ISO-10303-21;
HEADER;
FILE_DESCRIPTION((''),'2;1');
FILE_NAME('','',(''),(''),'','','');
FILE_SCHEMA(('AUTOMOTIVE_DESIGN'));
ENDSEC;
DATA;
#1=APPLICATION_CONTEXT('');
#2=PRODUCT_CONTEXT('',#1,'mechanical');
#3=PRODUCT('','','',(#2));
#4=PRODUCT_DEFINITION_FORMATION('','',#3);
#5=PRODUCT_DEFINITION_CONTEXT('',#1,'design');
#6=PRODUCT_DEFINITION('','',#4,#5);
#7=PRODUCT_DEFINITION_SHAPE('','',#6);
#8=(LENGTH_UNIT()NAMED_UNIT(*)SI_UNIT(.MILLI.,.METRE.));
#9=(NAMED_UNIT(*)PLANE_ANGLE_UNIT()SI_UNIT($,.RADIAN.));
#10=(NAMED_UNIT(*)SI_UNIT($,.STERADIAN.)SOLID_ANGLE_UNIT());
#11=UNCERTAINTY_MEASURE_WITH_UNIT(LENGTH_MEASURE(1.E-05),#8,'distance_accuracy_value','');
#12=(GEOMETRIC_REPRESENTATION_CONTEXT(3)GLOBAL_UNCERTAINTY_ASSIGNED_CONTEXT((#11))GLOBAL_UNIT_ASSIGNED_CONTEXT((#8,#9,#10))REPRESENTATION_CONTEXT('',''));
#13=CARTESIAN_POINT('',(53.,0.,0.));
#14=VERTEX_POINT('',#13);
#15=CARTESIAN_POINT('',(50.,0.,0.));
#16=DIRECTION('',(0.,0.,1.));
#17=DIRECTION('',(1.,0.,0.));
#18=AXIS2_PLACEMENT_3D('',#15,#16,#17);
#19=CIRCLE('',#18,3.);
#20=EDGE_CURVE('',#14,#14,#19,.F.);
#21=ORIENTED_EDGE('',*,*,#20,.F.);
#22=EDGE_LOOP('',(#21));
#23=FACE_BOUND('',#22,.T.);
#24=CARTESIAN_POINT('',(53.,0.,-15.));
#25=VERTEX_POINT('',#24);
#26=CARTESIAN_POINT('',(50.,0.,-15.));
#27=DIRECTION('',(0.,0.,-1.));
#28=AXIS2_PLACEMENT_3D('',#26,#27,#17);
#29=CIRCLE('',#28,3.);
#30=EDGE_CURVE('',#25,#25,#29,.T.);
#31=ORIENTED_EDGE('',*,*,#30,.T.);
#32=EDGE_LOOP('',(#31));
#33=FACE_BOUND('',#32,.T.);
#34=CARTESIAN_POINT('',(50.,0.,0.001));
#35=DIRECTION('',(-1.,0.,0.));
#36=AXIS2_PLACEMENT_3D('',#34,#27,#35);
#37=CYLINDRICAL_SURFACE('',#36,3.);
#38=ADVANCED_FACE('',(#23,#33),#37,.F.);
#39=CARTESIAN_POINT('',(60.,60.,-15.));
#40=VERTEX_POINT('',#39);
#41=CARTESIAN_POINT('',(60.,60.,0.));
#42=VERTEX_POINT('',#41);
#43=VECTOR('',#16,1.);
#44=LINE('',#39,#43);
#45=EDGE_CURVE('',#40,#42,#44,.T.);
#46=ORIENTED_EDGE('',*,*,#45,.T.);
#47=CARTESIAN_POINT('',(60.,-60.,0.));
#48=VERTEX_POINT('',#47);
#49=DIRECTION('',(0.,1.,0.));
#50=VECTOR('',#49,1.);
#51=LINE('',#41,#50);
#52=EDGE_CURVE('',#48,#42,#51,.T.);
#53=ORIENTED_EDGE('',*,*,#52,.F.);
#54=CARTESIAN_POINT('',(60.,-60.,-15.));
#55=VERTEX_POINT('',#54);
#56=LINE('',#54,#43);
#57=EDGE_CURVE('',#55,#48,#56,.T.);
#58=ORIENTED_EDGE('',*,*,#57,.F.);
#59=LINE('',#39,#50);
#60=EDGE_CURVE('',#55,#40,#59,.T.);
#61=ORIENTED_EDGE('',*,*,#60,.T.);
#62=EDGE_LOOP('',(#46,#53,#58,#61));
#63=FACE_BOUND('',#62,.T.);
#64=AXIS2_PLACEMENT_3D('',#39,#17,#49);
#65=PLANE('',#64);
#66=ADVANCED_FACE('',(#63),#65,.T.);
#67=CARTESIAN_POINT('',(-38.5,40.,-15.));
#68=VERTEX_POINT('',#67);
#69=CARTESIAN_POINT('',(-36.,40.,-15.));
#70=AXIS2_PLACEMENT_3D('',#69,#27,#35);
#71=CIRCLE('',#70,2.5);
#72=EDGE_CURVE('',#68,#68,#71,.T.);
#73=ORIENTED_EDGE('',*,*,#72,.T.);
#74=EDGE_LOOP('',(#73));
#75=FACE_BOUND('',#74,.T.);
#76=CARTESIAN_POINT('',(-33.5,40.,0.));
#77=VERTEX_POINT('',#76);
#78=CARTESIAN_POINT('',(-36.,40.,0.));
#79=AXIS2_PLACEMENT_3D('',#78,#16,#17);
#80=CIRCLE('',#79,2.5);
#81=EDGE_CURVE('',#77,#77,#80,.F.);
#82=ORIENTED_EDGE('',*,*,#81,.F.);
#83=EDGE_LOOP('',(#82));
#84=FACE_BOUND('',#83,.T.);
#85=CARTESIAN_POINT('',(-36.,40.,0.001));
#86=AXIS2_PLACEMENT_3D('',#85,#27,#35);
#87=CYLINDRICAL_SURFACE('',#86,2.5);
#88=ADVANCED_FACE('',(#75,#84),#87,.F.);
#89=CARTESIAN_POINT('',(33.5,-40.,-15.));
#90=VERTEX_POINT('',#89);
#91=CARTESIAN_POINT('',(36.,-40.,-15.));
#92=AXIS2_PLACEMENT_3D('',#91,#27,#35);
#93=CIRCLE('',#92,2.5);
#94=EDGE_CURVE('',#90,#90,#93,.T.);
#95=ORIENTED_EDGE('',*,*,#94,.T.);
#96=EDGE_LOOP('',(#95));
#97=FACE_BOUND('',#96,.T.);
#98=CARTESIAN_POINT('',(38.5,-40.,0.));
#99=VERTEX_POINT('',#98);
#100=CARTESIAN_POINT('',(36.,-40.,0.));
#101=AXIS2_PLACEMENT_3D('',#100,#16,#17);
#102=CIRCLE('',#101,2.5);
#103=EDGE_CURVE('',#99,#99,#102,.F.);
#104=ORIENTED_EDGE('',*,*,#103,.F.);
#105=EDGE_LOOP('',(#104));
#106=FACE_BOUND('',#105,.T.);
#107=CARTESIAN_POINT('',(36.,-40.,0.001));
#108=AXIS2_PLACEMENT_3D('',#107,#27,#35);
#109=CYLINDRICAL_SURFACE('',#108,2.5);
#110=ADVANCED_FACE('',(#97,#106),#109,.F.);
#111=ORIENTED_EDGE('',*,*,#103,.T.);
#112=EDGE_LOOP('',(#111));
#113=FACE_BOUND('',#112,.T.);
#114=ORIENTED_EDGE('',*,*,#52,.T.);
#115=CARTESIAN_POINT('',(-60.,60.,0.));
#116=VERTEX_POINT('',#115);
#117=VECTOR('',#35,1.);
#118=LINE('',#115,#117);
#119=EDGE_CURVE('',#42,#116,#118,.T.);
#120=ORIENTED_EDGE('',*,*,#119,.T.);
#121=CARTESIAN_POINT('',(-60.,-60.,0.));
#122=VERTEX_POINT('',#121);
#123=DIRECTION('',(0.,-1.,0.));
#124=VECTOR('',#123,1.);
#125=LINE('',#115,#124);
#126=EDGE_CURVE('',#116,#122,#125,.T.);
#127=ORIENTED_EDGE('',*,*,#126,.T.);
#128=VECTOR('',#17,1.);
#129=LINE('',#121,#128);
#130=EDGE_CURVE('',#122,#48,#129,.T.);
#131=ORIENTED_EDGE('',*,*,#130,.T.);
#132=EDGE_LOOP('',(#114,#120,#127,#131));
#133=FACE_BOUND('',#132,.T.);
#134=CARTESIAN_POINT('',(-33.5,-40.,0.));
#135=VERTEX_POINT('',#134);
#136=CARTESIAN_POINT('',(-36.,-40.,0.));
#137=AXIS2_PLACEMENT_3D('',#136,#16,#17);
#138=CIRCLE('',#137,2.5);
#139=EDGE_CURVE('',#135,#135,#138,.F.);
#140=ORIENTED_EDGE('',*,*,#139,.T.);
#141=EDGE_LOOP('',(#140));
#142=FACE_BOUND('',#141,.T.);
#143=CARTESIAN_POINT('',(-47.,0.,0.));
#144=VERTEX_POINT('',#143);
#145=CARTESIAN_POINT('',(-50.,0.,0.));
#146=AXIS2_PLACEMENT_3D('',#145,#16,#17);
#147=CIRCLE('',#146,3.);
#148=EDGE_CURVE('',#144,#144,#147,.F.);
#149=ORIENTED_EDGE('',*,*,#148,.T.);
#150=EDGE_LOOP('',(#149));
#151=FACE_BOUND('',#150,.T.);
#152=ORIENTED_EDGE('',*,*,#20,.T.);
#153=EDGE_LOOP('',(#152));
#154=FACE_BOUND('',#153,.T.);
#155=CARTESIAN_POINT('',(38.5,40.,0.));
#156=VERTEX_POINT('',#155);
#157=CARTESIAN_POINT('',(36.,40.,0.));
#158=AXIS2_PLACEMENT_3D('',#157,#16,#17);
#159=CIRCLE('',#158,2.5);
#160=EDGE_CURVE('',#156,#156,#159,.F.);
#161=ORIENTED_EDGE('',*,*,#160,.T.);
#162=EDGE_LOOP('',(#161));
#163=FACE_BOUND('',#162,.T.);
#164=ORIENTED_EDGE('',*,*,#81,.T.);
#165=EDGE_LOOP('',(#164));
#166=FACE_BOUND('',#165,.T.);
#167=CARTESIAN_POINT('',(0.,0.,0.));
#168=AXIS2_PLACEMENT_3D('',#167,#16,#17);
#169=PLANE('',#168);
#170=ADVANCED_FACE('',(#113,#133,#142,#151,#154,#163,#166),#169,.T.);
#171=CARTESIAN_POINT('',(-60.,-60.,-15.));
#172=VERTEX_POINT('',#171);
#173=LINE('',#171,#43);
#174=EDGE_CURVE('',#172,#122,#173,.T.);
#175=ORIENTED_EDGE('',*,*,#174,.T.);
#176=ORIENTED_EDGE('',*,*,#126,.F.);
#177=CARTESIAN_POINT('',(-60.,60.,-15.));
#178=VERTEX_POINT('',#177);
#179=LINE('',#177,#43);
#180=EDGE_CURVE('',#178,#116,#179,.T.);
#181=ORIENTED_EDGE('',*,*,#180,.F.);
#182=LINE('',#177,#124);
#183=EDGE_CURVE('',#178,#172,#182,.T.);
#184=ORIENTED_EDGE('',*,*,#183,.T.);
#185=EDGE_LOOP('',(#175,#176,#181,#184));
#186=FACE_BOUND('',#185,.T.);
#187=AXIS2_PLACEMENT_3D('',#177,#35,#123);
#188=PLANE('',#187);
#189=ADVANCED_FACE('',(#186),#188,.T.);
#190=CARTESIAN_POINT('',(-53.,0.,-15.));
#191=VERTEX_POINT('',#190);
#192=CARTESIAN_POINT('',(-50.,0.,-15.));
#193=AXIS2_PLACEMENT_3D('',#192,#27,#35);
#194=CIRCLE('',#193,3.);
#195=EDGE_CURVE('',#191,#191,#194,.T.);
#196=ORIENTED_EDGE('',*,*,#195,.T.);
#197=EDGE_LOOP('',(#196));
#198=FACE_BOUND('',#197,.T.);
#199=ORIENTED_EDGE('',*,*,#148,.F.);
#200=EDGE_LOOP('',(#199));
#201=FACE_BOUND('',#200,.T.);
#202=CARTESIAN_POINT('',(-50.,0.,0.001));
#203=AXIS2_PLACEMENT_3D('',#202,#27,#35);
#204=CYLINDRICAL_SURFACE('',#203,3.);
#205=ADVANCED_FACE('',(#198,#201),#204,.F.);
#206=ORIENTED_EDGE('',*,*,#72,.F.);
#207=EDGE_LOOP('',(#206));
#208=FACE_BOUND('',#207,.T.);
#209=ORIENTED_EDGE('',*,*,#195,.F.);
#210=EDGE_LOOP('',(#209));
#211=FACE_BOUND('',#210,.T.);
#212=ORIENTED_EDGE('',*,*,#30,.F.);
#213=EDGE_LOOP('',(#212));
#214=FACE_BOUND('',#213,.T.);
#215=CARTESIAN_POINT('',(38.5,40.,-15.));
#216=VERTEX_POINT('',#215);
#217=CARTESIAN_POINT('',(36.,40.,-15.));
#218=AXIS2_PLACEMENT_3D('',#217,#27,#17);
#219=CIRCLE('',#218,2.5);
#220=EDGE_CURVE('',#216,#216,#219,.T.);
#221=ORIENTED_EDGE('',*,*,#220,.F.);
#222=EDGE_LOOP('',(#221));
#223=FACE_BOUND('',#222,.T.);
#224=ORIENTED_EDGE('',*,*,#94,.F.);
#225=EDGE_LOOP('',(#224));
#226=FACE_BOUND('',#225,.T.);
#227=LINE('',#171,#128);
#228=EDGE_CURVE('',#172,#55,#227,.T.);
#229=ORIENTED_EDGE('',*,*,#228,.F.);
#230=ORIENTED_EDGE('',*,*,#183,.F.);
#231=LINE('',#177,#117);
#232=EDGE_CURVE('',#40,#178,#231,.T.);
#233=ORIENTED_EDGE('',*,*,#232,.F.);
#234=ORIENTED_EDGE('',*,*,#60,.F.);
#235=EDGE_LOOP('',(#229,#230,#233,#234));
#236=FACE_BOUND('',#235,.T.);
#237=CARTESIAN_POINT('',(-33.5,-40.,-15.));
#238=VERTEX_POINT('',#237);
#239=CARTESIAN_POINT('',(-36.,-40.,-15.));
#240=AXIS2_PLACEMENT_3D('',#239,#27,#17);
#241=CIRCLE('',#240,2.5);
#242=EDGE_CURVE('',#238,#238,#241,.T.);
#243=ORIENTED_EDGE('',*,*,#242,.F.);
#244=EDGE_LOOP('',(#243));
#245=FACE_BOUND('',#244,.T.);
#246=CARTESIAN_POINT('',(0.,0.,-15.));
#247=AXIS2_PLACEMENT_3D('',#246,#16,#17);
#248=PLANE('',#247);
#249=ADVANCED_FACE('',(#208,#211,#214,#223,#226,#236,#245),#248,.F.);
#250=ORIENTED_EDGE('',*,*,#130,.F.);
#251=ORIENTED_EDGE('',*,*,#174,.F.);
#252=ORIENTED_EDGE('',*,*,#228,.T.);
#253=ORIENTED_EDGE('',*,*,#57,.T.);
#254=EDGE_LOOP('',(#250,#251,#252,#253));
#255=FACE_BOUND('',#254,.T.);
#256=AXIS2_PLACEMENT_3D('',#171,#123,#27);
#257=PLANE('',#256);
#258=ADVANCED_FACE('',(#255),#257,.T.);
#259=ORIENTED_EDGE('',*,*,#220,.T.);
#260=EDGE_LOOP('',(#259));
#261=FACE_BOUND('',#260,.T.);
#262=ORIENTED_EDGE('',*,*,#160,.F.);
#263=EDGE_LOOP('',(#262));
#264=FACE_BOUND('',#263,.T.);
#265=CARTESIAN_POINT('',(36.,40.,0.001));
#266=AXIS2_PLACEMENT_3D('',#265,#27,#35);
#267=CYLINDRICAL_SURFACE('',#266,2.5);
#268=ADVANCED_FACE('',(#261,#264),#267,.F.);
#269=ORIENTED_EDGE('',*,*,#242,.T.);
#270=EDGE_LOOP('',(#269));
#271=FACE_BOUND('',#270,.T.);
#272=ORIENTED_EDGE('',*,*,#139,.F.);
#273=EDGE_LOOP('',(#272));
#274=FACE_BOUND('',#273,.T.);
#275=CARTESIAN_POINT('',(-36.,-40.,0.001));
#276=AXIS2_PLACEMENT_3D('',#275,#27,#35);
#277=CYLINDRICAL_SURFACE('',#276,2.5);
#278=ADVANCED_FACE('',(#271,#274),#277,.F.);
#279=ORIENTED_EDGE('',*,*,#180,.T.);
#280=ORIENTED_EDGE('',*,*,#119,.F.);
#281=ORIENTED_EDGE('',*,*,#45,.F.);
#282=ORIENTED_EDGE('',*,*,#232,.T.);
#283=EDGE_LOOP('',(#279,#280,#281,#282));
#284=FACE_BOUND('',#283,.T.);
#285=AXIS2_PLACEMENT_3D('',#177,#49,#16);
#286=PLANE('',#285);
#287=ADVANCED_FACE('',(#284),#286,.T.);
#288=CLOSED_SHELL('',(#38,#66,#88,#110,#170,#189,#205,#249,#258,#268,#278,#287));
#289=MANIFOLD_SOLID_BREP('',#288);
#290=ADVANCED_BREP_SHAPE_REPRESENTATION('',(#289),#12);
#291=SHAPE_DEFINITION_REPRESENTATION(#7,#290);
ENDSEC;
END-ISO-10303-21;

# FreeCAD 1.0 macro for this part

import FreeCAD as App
import Part
import Sketcher
from FreeCAD import Vector
Q = App.Units.Quantity

doc = App.newDocument("Part")
body = doc.addObject("PartDesign::Body", "Body")

sketch1 = body.newObject("Sketcher::SketchObject", "Sketch")
sketch1.AttachmentSupport = (doc.getObject("XY_Plane"), [""])
sketch1.MapMode = "FlatFace"
sketch1.addGeometry([
    Part.LineSegment(Vector(-60, 60, 0), Vector(-60, -60, 0)),
    Part.LineSegment(Vector(-60, -60, 0), Vector(60, -60, 0)),
    Part.LineSegment(Vector(60, -60, 0), Vector(60, 60, 0)),
    Part.LineSegment(Vector(60, 60, 0), Vector(-60, 60, 0)),
], False)
sketch1.addConstraint([
    Sketcher.Constraint("Coincident", 0, 2, 1, 1),
    Sketcher.Constraint("Coincident", 1, 2, 2, 1),
    Sketcher.Constraint("Coincident", 2, 2, 3, 1),
    Sketcher.Constraint("Coincident", 3, 2, 0, 1),
    Sketcher.Constraint("Vertical", 0),
    Sketcher.Constraint("Horizontal", 1),
    Sketcher.Constraint("Vertical", 2),
    Sketcher.Constraint("Horizontal", 3),
    Sketcher.Constraint("Symmetric", 0, 2, 2, 2, -1, 1),
    Sketcher.Constraint("Equal", 3, 0),
    Sketcher.Constraint("DistanceX", 1, 1, 1, 2, Q("120 mm")),
])
pad1 = body.newObject("PartDesign::Pad", "Pad")
pad1.Profile = sketch1
pad1.Length = 15
pad1.Reversed = True

sketch2 = body.newObject("Sketcher::SketchObject", "Sketch001")
sketch2.AttachmentSupport = (doc.getObject("XY_Plane"), [""])
sketch2.MapMode = "FlatFace"
sketch2.AttachmentOffset = App.Placement(Vector(0, 0, -15), App.Rotation())
sketch2.addGeometry(Part.Circle(Vector(36, -40, 0), Vector(0, 0, 1), 2.5), False)
sketch2.addConstraint([
    Sketcher.Constraint("Diameter", 0, Q("5 mm")),
    Sketcher.Constraint("DistanceX", -1, 1, 0, 3, Q("36 mm")),
    Sketcher.Constraint("DistanceY", 0, 3, -1, 1, Q("40 mm")),
])
pocket1 = body.newObject("PartDesign::Pocket", "Pocket")
pocket1.Profile = sketch2
pocket1.Type = "UpToFirst"
pocket1.Reversed = True

sketch3 = body.newObject("Sketcher::SketchObject", "Sketch002")
sketch3.AttachmentSupport = (doc.getObject("XY_Plane"), [""])
sketch3.MapMode = "FlatFace"
sketch3.AttachmentOffset = App.Placement(Vector(0, 0, -15), App.Rotation())
sketch3.addGeometry(Part.Circle(Vector(36, 40, 0), Vector(0, 0, 1), 2.5), False)
sketch3.addConstraint([
    Sketcher.Constraint("Diameter", 0, Q("5 mm")),
    Sketcher.Constraint("DistanceX", -1, 1, 0, 3, Q("36 mm")),
    Sketcher.Constraint("DistanceY", -1, 1, 0, 3, Q("40 mm")),
])
pocket2 = body.newObject("PartDesign::Pocket", "Pocket001")
pocket2.Profile = sketch3
pocket2.Type = "UpToFirst"
pocket2.Reversed = True

sketch4 = body.newObject("Sketcher::SketchObject", "Sketch003")
sketch4.AttachmentSupport = (doc.getObject("XY_Plane"), [""])
sketch4.MapMode = "FlatFace"
sketch4.AttachmentOffset = App.Placement(Vector(0, 0, -15), App.Rotation())
sketch4.addGeometry(Part.Circle(Vector(-36, -40, 0), Vector(0, 0, 1), 2.5), False)
sketch4.addConstraint([
    Sketcher.Constraint("Diameter", 0, Q("5 mm")),
    Sketcher.Constraint("DistanceX", 0, 3, -1, 1, Q("36 mm")),
    Sketcher.Constraint("DistanceY", 0, 3, -1, 1, Q("40 mm")),
])
pocket3 = body.newObject("PartDesign::Pocket", "Pocket002")
pocket3.Profile = sketch4
pocket3.Type = "UpToFirst"
pocket3.Reversed = True

sketch5 = body.newObject("Sketcher::SketchObject", "Sketch004")
sketch5.AttachmentSupport = (doc.getObject("XY_Plane"), [""])
sketch5.MapMode = "FlatFace"
sketch5.AttachmentOffset = App.Placement(Vector(0, 0, -15), App.Rotation())
sketch5.addGeometry(Part.Circle(Vector(-36, 40, 0), Vector(0, 0, 1), 2.5), False)
sketch5.addConstraint([
    Sketcher.Constraint("Diameter", 0, Q("5 mm")),
    Sketcher.Constraint("DistanceX", 0, 3, -1, 1, Q("36 mm")),
    Sketcher.Constraint("DistanceY", -1, 1, 0, 3, Q("40 mm")),
])
pocket4 = body.newObject("PartDesign::Pocket", "Pocket003")
pocket4.Profile = sketch5
pocket4.Type = "UpToFirst"
pocket4.Reversed = True

sketch6 = body.newObject("Sketcher::SketchObject", "Sketch005")
sketch6.AttachmentSupport = (doc.getObject("XY_Plane"), [""])
sketch6.MapMode = "FlatFace"
sketch6.AttachmentOffset = App.Placement(Vector(0, 0, -15), App.Rotation())
sketch6.addGeometry(Part.Circle(Vector(-50, 0, 0), Vector(0, 0, 1), 3), False)
sketch6.addConstraint([
    Sketcher.Constraint("PointOnObject", 0, 3, -1),
    Sketcher.Constraint("Diameter", 0, Q("6 mm")),
    Sketcher.Constraint("DistanceX", 0, 3, -1, 1, Q("50 mm")),
])
pocket5 = body.newObject("PartDesign::Pocket", "Pocket004")
pocket5.Profile = sketch6
pocket5.Type = "UpToFirst"
pocket5.Reversed = True

sketch7 = body.newObject("Sketcher::SketchObject", "Sketch006")
sketch7.AttachmentSupport = (doc.getObject("XY_Plane"), [""])
sketch7.MapMode = "FlatFace"
sketch7.AttachmentOffset = App.Placement(Vector(0, 0, -15), App.Rotation())
sketch7.addGeometry(Part.Circle(Vector(50, 0, 0), Vector(0, 0, 1), 3), False)
sketch7.addConstraint([
    Sketcher.Constraint("PointOnObject", 0, 3, -1),
    Sketcher.Constraint("Diameter", 0, Q("6 mm")),
    Sketcher.Constraint("DistanceX", -1, 1, 0, 3, Q("50 mm")),
])
pocket6 = body.newObject("PartDesign::Pocket", "Pocket005")
pocket6.Profile = sketch7
pocket6.Type = "UpToFirst"
pocket6.Reversed = True

doc.recompute()
